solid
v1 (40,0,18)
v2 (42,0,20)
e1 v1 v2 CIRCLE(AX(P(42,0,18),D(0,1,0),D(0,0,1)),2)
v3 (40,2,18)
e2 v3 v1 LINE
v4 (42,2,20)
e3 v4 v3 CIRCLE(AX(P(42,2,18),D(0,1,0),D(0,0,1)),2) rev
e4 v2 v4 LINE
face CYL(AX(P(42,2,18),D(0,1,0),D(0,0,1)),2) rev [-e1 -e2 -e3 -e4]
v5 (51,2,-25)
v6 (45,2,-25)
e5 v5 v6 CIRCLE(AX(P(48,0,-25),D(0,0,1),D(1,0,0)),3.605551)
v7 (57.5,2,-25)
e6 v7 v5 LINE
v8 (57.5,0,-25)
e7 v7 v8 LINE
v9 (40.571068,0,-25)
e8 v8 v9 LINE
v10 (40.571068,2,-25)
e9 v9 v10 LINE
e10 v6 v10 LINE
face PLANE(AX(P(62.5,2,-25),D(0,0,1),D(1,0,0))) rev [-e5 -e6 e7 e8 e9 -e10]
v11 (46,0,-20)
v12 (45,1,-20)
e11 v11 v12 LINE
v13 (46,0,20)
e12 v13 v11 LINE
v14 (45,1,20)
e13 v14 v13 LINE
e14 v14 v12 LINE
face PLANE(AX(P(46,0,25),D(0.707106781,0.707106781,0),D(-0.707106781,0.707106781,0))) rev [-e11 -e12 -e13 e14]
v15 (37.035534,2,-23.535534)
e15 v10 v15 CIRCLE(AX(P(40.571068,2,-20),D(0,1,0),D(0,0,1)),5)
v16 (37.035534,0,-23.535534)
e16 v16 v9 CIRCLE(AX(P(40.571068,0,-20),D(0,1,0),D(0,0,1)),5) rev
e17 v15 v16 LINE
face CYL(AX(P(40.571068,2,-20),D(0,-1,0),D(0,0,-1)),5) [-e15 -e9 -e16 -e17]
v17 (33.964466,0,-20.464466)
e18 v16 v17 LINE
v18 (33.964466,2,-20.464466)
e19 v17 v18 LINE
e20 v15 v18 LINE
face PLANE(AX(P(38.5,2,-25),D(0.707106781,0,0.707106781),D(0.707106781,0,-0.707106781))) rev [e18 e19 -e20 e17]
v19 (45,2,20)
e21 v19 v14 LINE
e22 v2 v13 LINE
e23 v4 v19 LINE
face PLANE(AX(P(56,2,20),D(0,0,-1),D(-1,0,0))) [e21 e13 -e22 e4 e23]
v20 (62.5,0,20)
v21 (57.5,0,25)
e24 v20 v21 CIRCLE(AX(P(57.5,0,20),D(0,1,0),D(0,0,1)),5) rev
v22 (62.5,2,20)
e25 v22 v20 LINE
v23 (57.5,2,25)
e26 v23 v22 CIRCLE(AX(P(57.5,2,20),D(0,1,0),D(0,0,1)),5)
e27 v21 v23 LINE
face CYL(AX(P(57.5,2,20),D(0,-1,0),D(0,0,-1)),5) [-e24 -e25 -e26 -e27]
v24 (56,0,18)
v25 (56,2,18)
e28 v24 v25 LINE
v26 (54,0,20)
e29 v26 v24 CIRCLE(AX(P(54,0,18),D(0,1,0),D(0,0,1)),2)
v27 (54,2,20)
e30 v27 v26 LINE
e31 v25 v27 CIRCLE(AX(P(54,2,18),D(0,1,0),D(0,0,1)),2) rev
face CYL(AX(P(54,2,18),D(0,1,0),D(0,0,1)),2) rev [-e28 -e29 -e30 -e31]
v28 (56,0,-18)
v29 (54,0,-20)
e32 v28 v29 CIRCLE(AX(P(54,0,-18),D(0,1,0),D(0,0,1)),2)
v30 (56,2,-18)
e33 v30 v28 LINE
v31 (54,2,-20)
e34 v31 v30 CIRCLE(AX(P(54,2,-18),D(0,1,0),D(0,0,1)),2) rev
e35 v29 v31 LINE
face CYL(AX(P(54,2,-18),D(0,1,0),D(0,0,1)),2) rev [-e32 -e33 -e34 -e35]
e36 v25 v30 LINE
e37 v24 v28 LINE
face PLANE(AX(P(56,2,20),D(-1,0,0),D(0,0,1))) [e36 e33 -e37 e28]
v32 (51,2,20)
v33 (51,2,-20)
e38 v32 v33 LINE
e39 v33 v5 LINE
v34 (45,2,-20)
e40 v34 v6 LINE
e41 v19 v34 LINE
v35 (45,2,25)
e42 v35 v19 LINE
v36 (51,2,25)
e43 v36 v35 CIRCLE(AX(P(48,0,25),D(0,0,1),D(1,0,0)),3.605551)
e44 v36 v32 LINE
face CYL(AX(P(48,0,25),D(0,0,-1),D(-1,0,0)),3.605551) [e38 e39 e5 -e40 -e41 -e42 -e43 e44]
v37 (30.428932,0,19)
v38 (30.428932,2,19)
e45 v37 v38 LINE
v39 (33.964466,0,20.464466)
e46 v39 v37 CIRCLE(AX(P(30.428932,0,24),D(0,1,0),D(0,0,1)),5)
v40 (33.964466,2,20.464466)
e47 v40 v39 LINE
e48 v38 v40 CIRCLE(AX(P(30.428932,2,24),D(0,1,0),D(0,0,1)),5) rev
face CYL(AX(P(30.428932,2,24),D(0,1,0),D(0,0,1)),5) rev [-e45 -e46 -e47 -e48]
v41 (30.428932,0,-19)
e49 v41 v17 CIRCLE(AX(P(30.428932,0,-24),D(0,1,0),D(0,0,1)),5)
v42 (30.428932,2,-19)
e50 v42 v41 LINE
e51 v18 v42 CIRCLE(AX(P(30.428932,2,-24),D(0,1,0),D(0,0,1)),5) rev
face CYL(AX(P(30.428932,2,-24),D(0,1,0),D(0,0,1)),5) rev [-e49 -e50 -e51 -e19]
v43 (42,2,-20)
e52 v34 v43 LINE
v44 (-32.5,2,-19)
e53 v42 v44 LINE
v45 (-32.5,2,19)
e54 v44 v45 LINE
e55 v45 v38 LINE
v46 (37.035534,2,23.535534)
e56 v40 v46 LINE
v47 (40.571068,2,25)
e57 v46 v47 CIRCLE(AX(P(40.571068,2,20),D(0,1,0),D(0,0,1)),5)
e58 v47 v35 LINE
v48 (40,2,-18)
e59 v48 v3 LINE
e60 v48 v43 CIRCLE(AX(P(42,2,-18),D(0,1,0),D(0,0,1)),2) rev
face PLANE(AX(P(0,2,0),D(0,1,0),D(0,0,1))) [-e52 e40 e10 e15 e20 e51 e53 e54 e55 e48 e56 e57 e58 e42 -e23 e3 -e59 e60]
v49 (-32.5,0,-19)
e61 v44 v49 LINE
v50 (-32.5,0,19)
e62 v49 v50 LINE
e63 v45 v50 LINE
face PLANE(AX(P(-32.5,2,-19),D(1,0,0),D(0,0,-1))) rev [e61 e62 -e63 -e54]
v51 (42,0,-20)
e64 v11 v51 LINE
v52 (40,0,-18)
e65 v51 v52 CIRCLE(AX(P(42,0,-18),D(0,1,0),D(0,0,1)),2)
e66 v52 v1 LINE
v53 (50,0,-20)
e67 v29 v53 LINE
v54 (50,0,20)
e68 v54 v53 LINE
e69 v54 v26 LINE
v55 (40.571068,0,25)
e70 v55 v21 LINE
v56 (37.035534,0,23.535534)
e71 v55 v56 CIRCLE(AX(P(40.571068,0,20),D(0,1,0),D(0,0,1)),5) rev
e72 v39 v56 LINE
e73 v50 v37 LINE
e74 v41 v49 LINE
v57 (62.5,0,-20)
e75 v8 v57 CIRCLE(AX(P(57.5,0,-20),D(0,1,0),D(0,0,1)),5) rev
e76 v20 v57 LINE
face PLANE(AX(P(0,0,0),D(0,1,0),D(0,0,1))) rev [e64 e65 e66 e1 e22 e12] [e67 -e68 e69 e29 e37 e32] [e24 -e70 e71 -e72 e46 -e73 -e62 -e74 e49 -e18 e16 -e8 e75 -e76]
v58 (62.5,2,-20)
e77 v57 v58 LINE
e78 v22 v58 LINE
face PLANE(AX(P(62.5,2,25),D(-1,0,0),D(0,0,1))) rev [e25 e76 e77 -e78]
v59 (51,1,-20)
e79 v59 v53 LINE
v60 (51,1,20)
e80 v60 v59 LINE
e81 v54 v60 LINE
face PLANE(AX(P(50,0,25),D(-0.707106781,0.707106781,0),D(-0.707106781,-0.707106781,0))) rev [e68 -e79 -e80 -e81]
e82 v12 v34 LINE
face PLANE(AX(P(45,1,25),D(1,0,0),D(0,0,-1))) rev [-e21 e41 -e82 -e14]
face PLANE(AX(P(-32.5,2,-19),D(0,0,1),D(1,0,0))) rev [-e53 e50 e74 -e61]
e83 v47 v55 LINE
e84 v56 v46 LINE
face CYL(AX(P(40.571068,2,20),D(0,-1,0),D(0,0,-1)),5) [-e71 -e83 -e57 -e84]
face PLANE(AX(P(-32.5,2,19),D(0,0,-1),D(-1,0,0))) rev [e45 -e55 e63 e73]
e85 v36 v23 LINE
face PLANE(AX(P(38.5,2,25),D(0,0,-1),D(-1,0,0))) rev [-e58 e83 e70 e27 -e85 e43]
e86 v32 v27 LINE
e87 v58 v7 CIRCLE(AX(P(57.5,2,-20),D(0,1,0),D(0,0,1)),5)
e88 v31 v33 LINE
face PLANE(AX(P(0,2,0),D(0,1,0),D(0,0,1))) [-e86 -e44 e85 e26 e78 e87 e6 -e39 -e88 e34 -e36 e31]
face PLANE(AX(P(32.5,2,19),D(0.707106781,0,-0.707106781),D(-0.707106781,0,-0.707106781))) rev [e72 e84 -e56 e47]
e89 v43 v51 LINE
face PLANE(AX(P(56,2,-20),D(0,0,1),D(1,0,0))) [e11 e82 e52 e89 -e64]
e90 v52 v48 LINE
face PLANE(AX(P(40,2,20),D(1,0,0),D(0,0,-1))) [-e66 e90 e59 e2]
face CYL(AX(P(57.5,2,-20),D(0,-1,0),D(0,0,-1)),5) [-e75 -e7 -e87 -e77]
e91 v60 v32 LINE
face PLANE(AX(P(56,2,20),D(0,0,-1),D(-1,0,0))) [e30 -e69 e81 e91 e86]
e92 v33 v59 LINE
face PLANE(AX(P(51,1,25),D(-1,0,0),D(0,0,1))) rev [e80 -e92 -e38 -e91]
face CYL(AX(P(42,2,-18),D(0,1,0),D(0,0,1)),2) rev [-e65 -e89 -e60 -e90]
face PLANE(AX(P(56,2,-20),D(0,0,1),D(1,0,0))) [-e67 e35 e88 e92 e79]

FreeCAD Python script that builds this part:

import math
import FreeCAD as App
import Part
import Sketcher


def edges_at(feature, points):
    """Names of the edges that pass closest to the given points."""
    edges = feature.Shape.Edges
    near = lambda p: min(range(len(edges)), key=lambda i: edges[i].distToShape(Part.Vertex(*p))[0])
    return sorted({f"Edge{near(p) + 1}" for p in points})


def add_polygon(sketch, points):
    """Adds a closed chain of lines whose ends are joined by coincident constraints."""
    first, n = sketch.GeometryCount, len(points)
    for a, b in zip(points, points[1:] + points[:1]):
        sketch.addGeometry(Part.LineSegment(App.Vector(*a, 0), App.Vector(*b, 0)), False)
    for i in range(n):
        sketch.addConstraint(Sketcher.Constraint("Coincident", first + i, 2, first + (i + 1) % n, 1))

doc = App.newDocument("Part")
body = doc.addObject("PartDesign::Body", "Body")

sketch1 = doc.addObject("Sketcher::SketchObject", "Sketch")
body.addObject(sketch1)
sketch1.AttachmentSupport = (doc.XZ_Plane, [""])
sketch1.MapMode = "FlatFace"
add_polygon(sketch1, [(32, 19), (38, 25), (62, 25), (62, -25), (38, -25), (32, -19), (-32, -19), (-32, 19)])
add_polygon(sketch1, [(56, 20), (40, 20), (40, -20), (56, -20)])
sketch1.addConstraint([
    Sketcher.Constraint("Horizontal", 1),
    Sketcher.Constraint("Vertical", 2),
    Sketcher.Constraint("Horizontal", 3),
    Sketcher.Constraint("Horizontal", 5),
    Sketcher.Constraint("Vertical", 6),
    Sketcher.Constraint("Horizontal", 7),
    Sketcher.Constraint("Horizontal", 8),
    Sketcher.Constraint("Vertical", 9),
    Sketcher.Constraint("Horizontal", 10),
    Sketcher.Constraint("Vertical", 11),
    Sketcher.Constraint("Symmetric", 4, 2, 6, 2, -1, 1),
    Sketcher.Constraint("Symmetric", 0, 2, 3, 2, -1),
    Sketcher.Constraint("Perpendicular", 0, 4),
    Sketcher.Constraint("Vertical", 4, 2, 7, 2),
    Sketcher.Constraint("DistanceX", 1, 1, 1, 2, 24.0),
    Sketcher.Constraint("DistanceX", 5, 2, 5, 1, 65.0),
    Sketcher.Constraint("DistanceX", 8, 2, 8, 1, 16.0),
    Sketcher.Constraint("DistanceY", 2, 2, 2, 1, 50.0),
    Sketcher.Constraint("DistanceY", 6, 1, 6, 2, 38.0),
    Sketcher.Constraint("DistanceY", 9, 2, 9, 1, 40.0),
    Sketcher.Constraint("DistanceX", -1, 1, 8, 2, 40.0),
    Sketcher.Constraint("DistanceY", -1, 1, 8, 2, 20.0),
])
pad1 = doc.addObject("PartDesign::Pad", "Pad")
body.addObject(pad1)
pad1.Profile = sketch1
pad1.Length = 2
pad1.Reversed = True
doc.recompute()

fillet = doc.addObject("PartDesign::Fillet", "Fillet")
body.addObject(fillet)
fillet.Base = (pad1, edges_at(pad1, [
    (32.5, 1, -19),
    (38.5, 1, -25),
    (62.5, 1, -25),
    (62.5, 1, 25),
    (38.5, 1, 25),
    (32.5, 1, 19),
]))
fillet.Radius = 5
doc.recompute()

fillet2 = doc.addObject("PartDesign::Fillet", "Fillet001")
body.addObject(fillet2)
fillet2.Base = (fillet, edges_at(fillet, [
    (40, 1, -20),
    (40, 1, 20),
    (56, 1, 20),
    (56, 1, -20),
]))
fillet2.Radius = 2

sketch2 = doc.addObject("Sketcher::SketchObject", "Sketch001")
body.addObject(sketch2)
sketch2.AttachmentSupport = (doc.XY_Plane, [""])
sketch2.MapMode = "FlatFace"
sketch2.addGeometry([
    Part.LineSegment(App.Vector(46, 0, 0), App.Vector(50, 0, 0)),
    Part.LineSegment(App.Vector(50, 0, 0), App.Vector(51, 1, 0)),
    Part.LineSegment(App.Vector(51, 1, 0), App.Vector(51, 2, 0)),
    Part.ArcOfCircle(Part.Circle(App.Vector(48, 0, 0), App.Vector(0, 0, 1), 3.6), math.radians(34), math.radians(146)),
    Part.LineSegment(App.Vector(45, 2, 0), App.Vector(45, 1, 0)),
    Part.LineSegment(App.Vector(45, 1, 0), App.Vector(46, 0, 0)),
], False)
sketch2.addConstraint([
    Sketcher.Constraint("Coincident", 0, 2, 1, 1),
    Sketcher.Constraint("Coincident", 1, 2, 2, 1),
    Sketcher.Constraint("Coincident", 2, 2, 3, 1),
    Sketcher.Constraint("Coincident", 3, 2, 4, 1),
    Sketcher.Constraint("Coincident", 4, 2, 5, 1),
    Sketcher.Constraint("Coincident", 5, 2, 0, 1),
    Sketcher.Constraint("Horizontal", 0),
    Sketcher.Constraint("Vertical", 2),
    Sketcher.Constraint("Vertical", 4),
    Sketcher.Constraint("PointOnObject", 3, 3, -1),
    Sketcher.Constraint("PointOnObject", 0, 2, -1),
    Sketcher.Constraint("Perpendicular", 1, 5),
    Sketcher.Constraint("Horizontal", 2, 2, 3, 2),
    Sketcher.Constraint("Horizontal", 1, 2, 4, 2),
    Sketcher.Constraint("Equal", 1, 5),
    Sketcher.Constraint("DistanceX", 0, 1, 0, 2, 4.0),
    Sketcher.Constraint("DistanceY", 2, 1, 2, 2, 1.0),
    Sketcher.Constraint("DistanceX", -1, 1, 3, 3, 48.0),
    Sketcher.Constraint("DistanceX", -1, 1, 1, 2, 51.0),
])
pad2 = doc.addObject("PartDesign::Pad", "Pad001")
body.addObject(pad2)
pad2.Profile = sketch2
pad2.Length = 50
pad2.Midplane = True

doc.recompute()
